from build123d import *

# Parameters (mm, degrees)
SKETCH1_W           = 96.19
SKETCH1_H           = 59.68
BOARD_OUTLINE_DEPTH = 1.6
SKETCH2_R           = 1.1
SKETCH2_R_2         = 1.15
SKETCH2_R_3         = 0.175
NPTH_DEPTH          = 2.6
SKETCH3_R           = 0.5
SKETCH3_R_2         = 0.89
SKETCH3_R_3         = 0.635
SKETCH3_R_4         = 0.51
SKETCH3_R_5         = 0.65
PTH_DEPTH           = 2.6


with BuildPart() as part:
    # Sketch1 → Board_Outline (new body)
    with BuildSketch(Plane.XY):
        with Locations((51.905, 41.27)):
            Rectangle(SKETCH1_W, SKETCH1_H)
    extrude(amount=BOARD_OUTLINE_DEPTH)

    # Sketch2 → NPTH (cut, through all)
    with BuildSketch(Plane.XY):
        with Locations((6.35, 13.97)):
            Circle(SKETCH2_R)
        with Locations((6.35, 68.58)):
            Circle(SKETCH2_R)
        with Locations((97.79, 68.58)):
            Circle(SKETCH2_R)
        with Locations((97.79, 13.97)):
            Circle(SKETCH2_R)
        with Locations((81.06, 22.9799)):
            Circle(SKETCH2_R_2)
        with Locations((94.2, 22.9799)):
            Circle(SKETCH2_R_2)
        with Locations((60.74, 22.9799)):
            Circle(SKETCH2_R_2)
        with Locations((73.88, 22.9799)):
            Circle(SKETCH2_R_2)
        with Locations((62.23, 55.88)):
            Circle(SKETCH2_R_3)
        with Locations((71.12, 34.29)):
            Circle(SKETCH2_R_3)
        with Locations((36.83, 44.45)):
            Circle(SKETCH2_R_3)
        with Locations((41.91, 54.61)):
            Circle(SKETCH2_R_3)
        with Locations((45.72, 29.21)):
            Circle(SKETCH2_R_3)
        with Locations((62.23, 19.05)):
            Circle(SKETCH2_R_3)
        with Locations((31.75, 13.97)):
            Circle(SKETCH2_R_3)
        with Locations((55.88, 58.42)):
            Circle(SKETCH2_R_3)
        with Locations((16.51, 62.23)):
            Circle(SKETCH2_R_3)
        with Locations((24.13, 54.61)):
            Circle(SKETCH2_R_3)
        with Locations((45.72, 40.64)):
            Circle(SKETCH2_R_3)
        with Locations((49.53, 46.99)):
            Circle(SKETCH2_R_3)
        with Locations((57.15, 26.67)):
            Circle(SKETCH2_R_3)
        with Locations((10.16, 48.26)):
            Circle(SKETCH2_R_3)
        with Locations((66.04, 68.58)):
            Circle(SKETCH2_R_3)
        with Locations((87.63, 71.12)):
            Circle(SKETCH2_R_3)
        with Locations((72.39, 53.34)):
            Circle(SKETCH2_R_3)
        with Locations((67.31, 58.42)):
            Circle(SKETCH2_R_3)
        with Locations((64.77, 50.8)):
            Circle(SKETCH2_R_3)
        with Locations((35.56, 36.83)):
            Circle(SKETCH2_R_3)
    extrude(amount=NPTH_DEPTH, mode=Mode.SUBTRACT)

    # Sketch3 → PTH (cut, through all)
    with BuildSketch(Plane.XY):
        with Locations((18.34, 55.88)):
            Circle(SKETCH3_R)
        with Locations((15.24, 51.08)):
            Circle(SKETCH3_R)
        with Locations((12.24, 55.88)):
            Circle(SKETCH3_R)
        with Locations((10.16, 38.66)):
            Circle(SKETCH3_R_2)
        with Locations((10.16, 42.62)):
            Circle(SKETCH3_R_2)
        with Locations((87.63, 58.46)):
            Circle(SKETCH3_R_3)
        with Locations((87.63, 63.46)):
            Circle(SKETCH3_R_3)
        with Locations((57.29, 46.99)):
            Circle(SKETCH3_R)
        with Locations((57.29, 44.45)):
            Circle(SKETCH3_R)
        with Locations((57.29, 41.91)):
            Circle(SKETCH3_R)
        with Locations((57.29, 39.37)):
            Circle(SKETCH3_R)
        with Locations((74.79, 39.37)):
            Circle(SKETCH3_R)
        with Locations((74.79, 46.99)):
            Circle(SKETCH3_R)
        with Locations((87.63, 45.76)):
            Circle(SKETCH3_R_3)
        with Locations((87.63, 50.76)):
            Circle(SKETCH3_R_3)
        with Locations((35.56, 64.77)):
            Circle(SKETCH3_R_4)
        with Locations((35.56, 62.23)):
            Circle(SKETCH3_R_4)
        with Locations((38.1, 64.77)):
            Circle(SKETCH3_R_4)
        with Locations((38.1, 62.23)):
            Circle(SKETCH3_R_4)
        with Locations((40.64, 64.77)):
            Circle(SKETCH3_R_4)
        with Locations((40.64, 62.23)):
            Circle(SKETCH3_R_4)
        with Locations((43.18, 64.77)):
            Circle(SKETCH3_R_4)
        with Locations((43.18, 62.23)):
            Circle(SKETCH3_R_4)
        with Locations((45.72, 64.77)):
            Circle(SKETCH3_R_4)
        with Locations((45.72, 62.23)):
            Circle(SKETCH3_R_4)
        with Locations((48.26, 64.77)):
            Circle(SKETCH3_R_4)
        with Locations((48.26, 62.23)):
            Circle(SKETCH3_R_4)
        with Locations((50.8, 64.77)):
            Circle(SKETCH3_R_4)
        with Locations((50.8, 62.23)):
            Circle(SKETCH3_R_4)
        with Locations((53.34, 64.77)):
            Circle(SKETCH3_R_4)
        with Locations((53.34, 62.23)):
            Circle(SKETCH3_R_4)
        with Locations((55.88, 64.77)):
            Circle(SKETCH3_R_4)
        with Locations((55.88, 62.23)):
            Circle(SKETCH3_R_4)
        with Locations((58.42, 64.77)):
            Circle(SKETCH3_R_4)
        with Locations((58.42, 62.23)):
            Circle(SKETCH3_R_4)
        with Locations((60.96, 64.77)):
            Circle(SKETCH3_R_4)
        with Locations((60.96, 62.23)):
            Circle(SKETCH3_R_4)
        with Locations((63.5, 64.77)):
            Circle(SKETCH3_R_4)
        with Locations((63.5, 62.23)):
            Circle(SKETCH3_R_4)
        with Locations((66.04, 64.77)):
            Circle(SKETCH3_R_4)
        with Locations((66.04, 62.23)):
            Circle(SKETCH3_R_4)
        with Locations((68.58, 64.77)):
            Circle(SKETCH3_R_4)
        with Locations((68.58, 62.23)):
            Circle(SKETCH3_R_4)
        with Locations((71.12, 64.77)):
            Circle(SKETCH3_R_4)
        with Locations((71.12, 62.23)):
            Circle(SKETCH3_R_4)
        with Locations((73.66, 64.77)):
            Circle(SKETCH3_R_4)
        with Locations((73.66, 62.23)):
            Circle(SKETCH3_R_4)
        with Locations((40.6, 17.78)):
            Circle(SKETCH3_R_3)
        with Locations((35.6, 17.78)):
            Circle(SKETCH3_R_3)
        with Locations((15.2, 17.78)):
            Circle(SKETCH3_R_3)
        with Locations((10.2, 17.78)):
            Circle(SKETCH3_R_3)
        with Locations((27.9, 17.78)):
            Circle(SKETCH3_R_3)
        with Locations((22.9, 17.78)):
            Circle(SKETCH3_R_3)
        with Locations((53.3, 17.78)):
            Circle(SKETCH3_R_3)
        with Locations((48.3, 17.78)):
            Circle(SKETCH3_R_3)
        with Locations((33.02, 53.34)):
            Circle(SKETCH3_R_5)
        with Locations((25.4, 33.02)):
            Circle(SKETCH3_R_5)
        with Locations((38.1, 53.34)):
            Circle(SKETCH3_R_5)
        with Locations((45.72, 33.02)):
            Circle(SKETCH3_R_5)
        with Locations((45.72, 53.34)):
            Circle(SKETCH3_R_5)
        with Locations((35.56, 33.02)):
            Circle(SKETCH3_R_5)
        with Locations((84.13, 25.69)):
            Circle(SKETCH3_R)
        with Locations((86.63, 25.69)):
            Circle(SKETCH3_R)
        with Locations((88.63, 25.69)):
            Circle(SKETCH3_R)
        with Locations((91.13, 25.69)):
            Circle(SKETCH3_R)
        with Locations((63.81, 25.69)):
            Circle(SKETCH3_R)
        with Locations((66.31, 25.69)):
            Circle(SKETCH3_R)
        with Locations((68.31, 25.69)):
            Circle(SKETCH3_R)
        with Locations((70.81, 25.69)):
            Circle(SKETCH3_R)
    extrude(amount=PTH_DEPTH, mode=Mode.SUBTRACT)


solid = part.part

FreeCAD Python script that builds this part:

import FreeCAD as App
import Part
import Sketcher

V = App.Vector
Q = App.Units.Quantity


def add_polygon(sketch, points):
    """Adds a closed chain of lines whose ends are joined by coincident constraints."""
    first, n = sketch.GeometryCount, len(points)
    for a, b in zip(points, points[1:] + points[:1]):
        sketch.addGeometry(Part.LineSegment(App.Vector(*a, 0), App.Vector(*b, 0)), False)
    for i in range(n):
        sketch.addConstraint(Sketcher.Constraint("Coincident", first + i, 2, first + (i + 1) % n, 1))

doc = App.newDocument("Part")
body = doc.addObject("PartDesign::Body", "Body")

# Sketch on XY plane
sketch1 = doc.addObject("Sketcher::SketchObject", "Sketch")
body.addObject(sketch1)
sketch1.AttachmentSupport = (doc.XY_Plane, [""])
sketch1.MapMode = "FlatFace"
add_polygon(sketch1, [(4, 71), (4, 11), (100, 11), (100, 71)])  # lines 0-3
sketch1.addConstraint([
    Sketcher.Constraint("Vertical", 0),
    Sketcher.Constraint("Horizontal", 1),
    Sketcher.Constraint("Vertical", 2),
    Sketcher.Constraint("Horizontal", 3),
    Sketcher.Constraint("DistanceX", -1, 1, 1, 2, Q("100 mm")),
    Sketcher.Constraint("DistanceX", 1, 1, 1, 2, Q("96.19 mm")),
    Sketcher.Constraint("DistanceY", 0, 2, 0, 1, Q("59.68 mm")),
    Sketcher.Constraint("DistanceY", -1, 1, 0, 2, Q("11.43 mm")),
])
pad1 = doc.addObject("PartDesign::Pad", "Pad")
body.addObject(pad1)
pad1.Profile = sketch1
pad1.Length = 1.6

# Sketch on XY plane
sketch2 = doc.addObject("Sketcher::SketchObject", "Sketch001")
body.addObject(sketch2)
sketch2.AttachmentSupport = (doc.XY_Plane, [""])
sketch2.MapMode = "FlatFace"
sketch2.addGeometry([
    Part.Circle(V(6.35, 13.97, 0), V(0, 0, 1), 1.1),  # 0
    Part.Circle(V(6.35, 68.58, 0), V(0, 0, 1), 1.1),  # 1
    Part.Circle(V(97.79, 68.58, 0), V(0, 0, 1), 1.1),  # 2
    Part.Circle(V(97.79, 13.97, 0), V(0, 0, 1), 1.1),  # 3
    Part.Circle(V(81.06, 22.98, 0), V(0, 0, 1), 1.15),  # 4
    Part.Circle(V(94.2, 22.98, 0), V(0, 0, 1), 1.15),  # 5
    Part.Circle(V(60.74, 22.98, 0), V(0, 0, 1), 1.15),  # 6
    Part.Circle(V(73.88, 22.98, 0), V(0, 0, 1), 1.15),  # 7
    Part.Circle(V(62.23, 55.88, 0), V(0, 0, 1), 0.17),  # 8
    Part.Circle(V(71.12, 34.29, 0), V(0, 0, 1), 0.17),  # 9
    Part.Circle(V(36.83, 44.45, 0), V(0, 0, 1), 0.17),  # 10
    Part.Circle(V(41.91, 54.61, 0), V(0, 0, 1), 0.17),  # 11
    Part.Circle(V(45.72, 29.21, 0), V(0, 0, 1), 0.17),  # 12
    Part.Circle(V(62.23, 19.05, 0), V(0, 0, 1), 0.17),  # 13
    Part.Circle(V(31.75, 13.97, 0), V(0, 0, 1), 0.17),  # 14
    Part.Circle(V(55.88, 58.42, 0), V(0, 0, 1), 0.17),  # 15
    Part.Circle(V(16.51, 62.23, 0), V(0, 0, 1), 0.17),  # 16
    Part.Circle(V(24.13, 54.61, 0), V(0, 0, 1), 0.17),  # 17
    Part.Circle(V(45.72, 40.64, 0), V(0, 0, 1), 0.17),  # 18
    Part.Circle(V(49.53, 46.99, 0), V(0, 0, 1), 0.17),  # 19
    Part.Circle(V(57.15, 26.67, 0), V(0, 0, 1), 0.17),  # 20
    Part.Circle(V(10.16, 48.26, 0), V(0, 0, 1), 0.17),  # 21
    Part.Circle(V(66.04, 68.58, 0), V(0, 0, 1), 0.17),  # 22
    Part.Circle(V(87.63, 71.12, 0), V(0, 0, 1), 0.17),  # 23
    Part.Circle(V(72.39, 53.34, 0), V(0, 0, 1), 0.17),  # 24
    Part.Circle(V(67.31, 58.42, 0), V(0, 0, 1), 0.17),  # 25
    Part.Circle(V(64.77, 50.8, 0), V(0, 0, 1), 0.17),  # 26
    Part.Circle(V(35.56, 36.83, 0), V(0, 0, 1), 0.17),  # 27
], False)
sketch2.addConstraint([
    Sketcher.Constraint("Equal", 0, 1),
    Sketcher.Constraint("Equal", 1, 2),
    Sketcher.Constraint("Equal", 2, 3),
    Sketcher.Constraint("Equal", 4, 5),
    Sketcher.Constraint("Equal", 5, 6),
    Sketcher.Constraint("Equal", 6, 7),
    Sketcher.Constraint("Equal", 8, 9),
    Sketcher.Constraint("Equal", 9, 10),
    Sketcher.Constraint("Equal", 10, 11),
    Sketcher.Constraint("Equal", 11, 12),
    Sketcher.Constraint("Equal", 12, 13),
    Sketcher.Constraint("Equal", 13, 14),
    Sketcher.Constraint("Equal", 14, 15),
    Sketcher.Constraint("Equal", 15, 16),
    Sketcher.Constraint("Equal", 16, 17),
    Sketcher.Constraint("Equal", 17, 18),
    Sketcher.Constraint("Equal", 18, 19),
    Sketcher.Constraint("Equal", 19, 20),
    Sketcher.Constraint("Equal", 20, 21),
    Sketcher.Constraint("Equal", 21, 22),
    Sketcher.Constraint("Equal", 22, 23),
    Sketcher.Constraint("Equal", 23, 24),
    Sketcher.Constraint("Equal", 24, 25),
    Sketcher.Constraint("Equal", 25, 26),
    Sketcher.Constraint("Equal", 26, 27),
    Sketcher.Constraint("Horizontal", 1, 3, 2, 3),
    Sketcher.Constraint("Horizontal", 0, 3, 3, 3),
    Sketcher.Constraint("Horizontal", 4, 3, 5, 3),
    Sketcher.Constraint("Horizontal", 5, 3, 6, 3),
    Sketcher.Constraint("Horizontal", 6, 3, 7, 3),
    Sketcher.Constraint("Horizontal", 3, 3, 14, 3),
    Sketcher.Constraint("Horizontal", 11, 3, 17, 3),
    Sketcher.Constraint("Horizontal", 2, 3, 22, 3),
    Sketcher.Constraint("Horizontal", 15, 3, 25, 3),
    Sketcher.Constraint("Vertical", 0, 3, 1, 3),
    Sketcher.Constraint("Vertical", 2, 3, 3, 3),
    Sketcher.Constraint("Vertical", 8, 3, 13, 3),
    Sketcher.Constraint("Vertical", 12, 3, 18, 3),
    Sketcher.Constraint("Diameter", 0, Q("2.2 mm")),
    Sketcher.Constraint("Diameter", 4, Q("2.3 mm")),
    Sketcher.Constraint("Diameter", 8, Q("0.35 mm")),
    Sketcher.Constraint("DistanceX", -1, 1, 5, 3, Q("94.2 mm")),
    Sketcher.Constraint("DistanceY", -1, 1, 26, 3, Q("50.8 mm")),
    Sketcher.Constraint("DistanceY", 8, 3, 2, 3, Q("12.7 mm")),
    Sketcher.Constraint("DistanceX", 10, 3, 8, 3, Q("25.4 mm")),
    Sketcher.Constraint("DistanceY", 12, 3, 11, 3, Q("25.4 mm")),
    Sketcher.Constraint("DistanceX", 12, 3, 9, 3, Q("25.4 mm")),
    Sketcher.Constraint("DistanceX", 0, 3, 14, 3, Q("25.4 mm")),
    Sketcher.Constraint("DistanceX", 16, 3, 11, 3, Q("25.4 mm")),
    Sketcher.Constraint("DistanceX", 17, 3, 10, 3, Q("12.7 mm")),
    Sketcher.Constraint("DistanceX", 10, 3, 19, 3, Q("12.7 mm")),
    Sketcher.Constraint("DistanceX", 8, 3, 23, 3, Q("25.4 mm")),
    Sketcher.Constraint("DistanceY", 15, 3, 23, 3, Q("12.7 mm")),
    Sketcher.Constraint("DistanceX", -1, 1, 0, 3, Q("6.35 mm")),
    Sketcher.Constraint("DistanceY", -1, 1, 0, 3, Q("13.97 mm")),
    Sketcher.Constraint("DistanceY", -1, 1, 1, 3, Q("68.58 mm")),
    Sketcher.Constraint("DistanceX", -1, 1, 2, 3, Q("97.79 mm")),
    Sketcher.Constraint("DistanceX", -1, 1, 4, 3, Q("81.06 mm")),
    Sketcher.Constraint("DistanceX", -1, 1, 6, 3, Q("60.74 mm")),
    Sketcher.Constraint("DistanceX", -1, 1, 7, 3, Q("73.88 mm")),
    Sketcher.Constraint("DistanceX", -1, 1, 8, 3, Q("62.23 mm")),
    Sketcher.Constraint("DistanceX", -1, 1, 9, 3, Q("71.12 mm")),
    Sketcher.Constraint("DistanceY", -1, 1, 9, 3, Q("34.29 mm")),
    Sketcher.Constraint("DistanceY", -1, 1, 10, 3, Q("44.45 mm")),
    Sketcher.Constraint("DistanceX", -1, 1, 11, 3, Q("41.91 mm")),
    Sketcher.Constraint("DistanceY", -1, 1, 11, 3, Q("54.61 mm")),
    Sketcher.Constraint("DistanceY", -1, 1, 13, 3, Q("19.05 mm")),
    Sketcher.Constraint("DistanceX", -1, 1, 15, 3, Q("55.88 mm")),
    Sketcher.Constraint("DistanceY", -1, 1, 15, 3, Q("58.42 mm")),
    Sketcher.Constraint("DistanceY", -1, 1, 16, 3, Q("62.23 mm")),
    Sketcher.Constraint("DistanceY", -1, 1, 18, 3, Q("40.64 mm")),
    Sketcher.Constraint("DistanceY", -1, 1, 19, 3, Q("46.99 mm")),
    Sketcher.Constraint("DistanceX", -1, 1, 20, 3, Q("57.15 mm")),
    Sketcher.Constraint("DistanceY", -1, 1, 20, 3, Q("26.67 mm")),
    Sketcher.Constraint("DistanceX", -1, 1, 21, 3, Q("10.16 mm")),
    Sketcher.Constraint("DistanceY", -1, 1, 21, 3, Q("48.26 mm")),
    Sketcher.Constraint("DistanceX", -1, 1, 22, 3, Q("66.04 mm")),
    Sketcher.Constraint("DistanceX", -1, 1, 24, 3, Q("72.39 mm")),
    Sketcher.Constraint("DistanceY", -1, 1, 24, 3, Q("53.34 mm")),
    Sketcher.Constraint("DistanceX", -1, 1, 25, 3, Q("67.31 mm")),
    Sketcher.Constraint("DistanceX", -1, 1, 26, 3, Q("64.77 mm")),
    Sketcher.Constraint("DistanceX", -1, 1, 27, 3, Q("35.56 mm")),
    Sketcher.Constraint("DistanceY", -1, 1, 27, 3, Q("36.83 mm")),
    Sketcher.Constraint("DistanceY", -1, 1, 4, 3, Q("22.9799 mm")),
])
pocket1 = doc.addObject("PartDesign::Pocket", "Pocket")
body.addObject(pocket1)
pocket1.Profile = sketch2
pocket1.Type = "ThroughAll"
pocket1.Reversed = True

# Sketch on XY plane
sketch3 = doc.addObject("Sketcher::SketchObject", "Sketch002")
body.addObject(sketch3)
sketch3.AttachmentSupport = (doc.XY_Plane, [""])
sketch3.MapMode = "FlatFace"
sketch3.addGeometry([
    Part.Circle(V(18.3, 55.9, 0), V(0, 0, 1), 0.5),  # 0
    Part.Circle(V(15.2, 51.1, 0), V(0, 0, 1), 0.5),  # 1
    Part.Circle(V(12.2, 55.9, 0), V(0, 0, 1), 0.5),  # 2
    Part.Circle(V(10.2, 38.7, 0), V(0, 0, 1), 0.9),  # 3
    Part.Circle(V(10.2, 42.6, 0), V(0, 0, 1), 0.9),  # 4
    Part.Circle(V(87.6, 58.5, 0), V(0, 0, 1), 0.6),  # 5
    Part.Circle(V(87.6, 63.5, 0), V(0, 0, 1), 0.6),  # 6
    Part.Circle(V(57.3, 47, 0), V(0, 0, 1), 0.5),  # 7
    Part.Circle(V(57.3, 44.5, 0), V(0, 0, 1), 0.5),  # 8
    Part.Circle(V(57.3, 41.9, 0), V(0, 0, 1), 0.5),  # 9
    Part.Circle(V(57.3, 39.4, 0), V(0, 0, 1), 0.5),  # 10
    Part.Circle(V(74.8, 39.4, 0), V(0, 0, 1), 0.5),  # 11
    Part.Circle(V(74.8, 47, 0), V(0, 0, 1), 0.5),  # 12
    Part.Circle(V(87.6, 45.8, 0), V(0, 0, 1), 0.6),  # 13
    Part.Circle(V(87.6, 50.8, 0), V(0, 0, 1), 0.6),  # 14
    Part.Circle(V(35.6, 64.8, 0), V(0, 0, 1), 0.5),  # 15
    Part.Circle(V(35.6, 62.2, 0), V(0, 0, 1), 0.5),  # 16
    Part.Circle(V(38.1, 64.8, 0), V(0, 0, 1), 0.5),  # 17
    Part.Circle(V(38.1, 62.2, 0), V(0, 0, 1), 0.5),  # 18
    Part.Circle(V(40.6, 64.8, 0), V(0, 0, 1), 0.5),  # 19
    Part.Circle(V(40.6, 62.2, 0), V(0, 0, 1), 0.5),  # 20
    Part.Circle(V(43.2, 64.8, 0), V(0, 0, 1), 0.5),  # 21
    Part.Circle(V(43.2, 62.2, 0), V(0, 0, 1), 0.5),  # 22
    Part.Circle(V(45.7, 64.8, 0), V(0, 0, 1), 0.5),  # 23
    Part.Circle(V(45.7, 62.2, 0), V(0, 0, 1), 0.5),  # 24
    Part.Circle(V(48.3, 64.8, 0), V(0, 0, 1), 0.5),  # 25
    Part.Circle(V(48.3, 62.2, 0), V(0, 0, 1), 0.5),  # 26
    Part.Circle(V(50.8, 64.8, 0), V(0, 0, 1), 0.5),  # 27
    Part.Circle(V(50.8, 62.2, 0), V(0, 0, 1), 0.5),  # 28
    Part.Circle(V(53.3, 64.8, 0), V(0, 0, 1), 0.5),  # 29
    Part.Circle(V(53.3, 62.2, 0), V(0, 0, 1), 0.5),  # 30
    Part.Circle(V(55.9, 64.8, 0), V(0, 0, 1), 0.5),  # 31
    Part.Circle(V(55.9, 62.2, 0), V(0, 0, 1), 0.5),  # 32
    Part.Circle(V(58.4, 64.8, 0), V(0, 0, 1), 0.5),  # 33
    Part.Circle(V(58.4, 62.2, 0), V(0, 0, 1), 0.5),  # 34
    Part.Circle(V(61, 64.8, 0), V(0, 0, 1), 0.5),  # 35
    Part.Circle(V(61, 62.2, 0), V(0, 0, 1), 0.5),  # 36
    Part.Circle(V(63.5, 64.8, 0), V(0, 0, 1), 0.5),  # 37
    Part.Circle(V(63.5, 62.2, 0), V(0, 0, 1), 0.5),  # 38
    Part.Circle(V(66, 64.8, 0), V(0, 0, 1), 0.5),  # 39
    Part.Circle(V(66, 62.2, 0), V(0, 0, 1), 0.5),  # 40
    Part.Circle(V(68.6, 64.8, 0), V(0, 0, 1), 0.5),  # 41
    Part.Circle(V(68.6, 62.2, 0), V(0, 0, 1), 0.5),  # 42
    Part.Circle(V(71.1, 64.8, 0), V(0, 0, 1), 0.5),  # 43
    Part.Circle(V(71.1, 62.2, 0), V(0, 0, 1), 0.5),  # 44
    Part.Circle(V(73.7, 64.8, 0), V(0, 0, 1), 0.5),  # 45
    Part.Circle(V(73.7, 62.2, 0), V(0, 0, 1), 0.5),  # 46
    Part.Circle(V(40.6, 17.8, 0), V(0, 0, 1), 0.6),  # 47
    Part.Circle(V(35.6, 17.8, 0), V(0, 0, 1), 0.6),  # 48
    Part.Circle(V(15.2, 17.8, 0), V(0, 0, 1), 0.6),  # 49
    Part.Circle(V(10.2, 17.8, 0), V(0, 0, 1), 0.6),  # 50
    Part.Circle(V(27.9, 17.8, 0), V(0, 0, 1), 0.6),  # 51
    Part.Circle(V(22.9, 17.8, 0), V(0, 0, 1), 0.6),  # 52
    Part.Circle(V(53.3, 17.8, 0), V(0, 0, 1), 0.6),  # 53
    Part.Circle(V(48.3, 17.8, 0), V(0, 0, 1), 0.6),  # 54
    Part.Circle(V(33, 53.3, 0), V(0, 0, 1), 0.7),  # 55
    Part.Circle(V(25.4, 33, 0), V(0, 0, 1), 0.7),  # 56
    Part.Circle(V(38.1, 53.3, 0), V(0, 0, 1), 0.7),  # 57
    Part.Circle(V(45.7, 33, 0), V(0, 0, 1), 0.7),  # 58
    Part.Circle(V(45.7, 53.3, 0), V(0, 0, 1), 0.7),  # 59
    Part.Circle(V(35.6, 33, 0), V(0, 0, 1), 0.7),  # 60
    Part.Circle(V(84.1, 25.7, 0), V(0, 0, 1), 0.5),  # 61
    Part.Circle(V(86.6, 25.7, 0), V(0, 0, 1), 0.5),  # 62
    Part.Circle(V(88.6, 25.7, 0), V(0, 0, 1), 0.5),  # 63
    Part.Circle(V(91.1, 25.7, 0), V(0, 0, 1), 0.5),  # 64
    Part.Circle(V(63.8, 25.7, 0), V(0, 0, 1), 0.5),  # 65
    Part.Circle(V(66.3, 25.7, 0), V(0, 0, 1), 0.5),  # 66
    Part.Circle(V(68.3, 25.7, 0), V(0, 0, 1), 0.5),  # 67
    Part.Circle(V(70.8, 25.7, 0), V(0, 0, 1), 0.5),  # 68
], False)
sketch3.addConstraint([
    Sketcher.Constraint("Equal", 0, 1),
    Sketcher.Constraint("Equal", 1, 2),
    Sketcher.Constraint("Equal", 3, 4),
    Sketcher.Constraint("Equal", 5, 6),
    Sketcher.Constraint("Equal", 2, 7),
    Sketcher.Constraint("Equal", 7, 8),
    Sketcher.Constraint("Equal", 8, 9),
    Sketcher.Constraint("Equal", 9, 10),
    Sketcher.Constraint("Equal", 10, 11),
    Sketcher.Constraint("Equal", 11, 12),
    Sketcher.Constraint("Equal", 6, 13),
    Sketcher.Constraint("Equal", 13, 14),
    Sketcher.Constraint("Equal", 15, 16),
    Sketcher.Constraint("Equal", 16, 17),
    Sketcher.Constraint("Equal", 17, 18),
    Sketcher.Constraint("Equal", 18, 19),
    Sketcher.Constraint("Equal", 19, 20),
    Sketcher.Constraint("Equal", 20, 21),
    Sketcher.Constraint("Equal", 21, 22),
    Sketcher.Constraint("Equal", 22, 23),
    Sketcher.Constraint("Equal", 23, 24),
    Sketcher.Constraint("Equal", 24, 25),
    Sketcher.Constraint("Equal", 25, 26),
    Sketcher.Constraint("Equal", 26, 27),
    Sketcher.Constraint("Equal", 27, 28),
    Sketcher.Constraint("Equal", 28, 29),
    Sketcher.Constraint("Equal", 29, 30),
    Sketcher.Constraint("Equal", 30, 31),
    Sketcher.Constraint("Equal", 31, 32),
    Sketcher.Constraint("Equal", 32, 33),
    Sketcher.Constraint("Equal", 33, 34),
    Sketcher.Constraint("Equal", 34, 35),
    Sketcher.Constraint("Equal", 35, 36),
    Sketcher.Constraint("Equal", 36, 37),
    Sketcher.Constraint("Equal", 37, 38),
    Sketcher.Constraint("Equal", 38, 39),
    Sketcher.Constraint("Equal", 39, 40),
    Sketcher.Constraint("Equal", 40, 41),
    Sketcher.Constraint("Equal", 41, 42),
    Sketcher.Constraint("Equal", 42, 43),
    Sketcher.Constraint("Equal", 43, 44),
    Sketcher.Constraint("Equal", 44, 45),
    Sketcher.Constraint("Equal", 45, 46),
    Sketcher.Constraint("Equal", 14, 47),
    Sketcher.Constraint("Equal", 47, 48),
    Sketcher.Constraint("Equal", 48, 49),
    Sketcher.Constraint("Equal", 49, 50),
    Sketcher.Constraint("Equal", 50, 51),
    Sketcher.Constraint("Equal", 51, 52),
    Sketcher.Constraint("Equal", 52, 53),
    Sketcher.Constraint("Equal", 53, 54),
    Sketcher.Constraint("Equal", 55, 56),
    Sketcher.Constraint("Equal", 56, 57),
    Sketcher.Constraint("Equal", 57, 58),
    Sketcher.Constraint("Equal", 58, 59),
    Sketcher.Constraint("Equal", 59, 60),
    Sketcher.Constraint("Equal", 12, 61),
    Sketcher.Constraint("Equal", 61, 62),
    Sketcher.Constraint("Equal", 62, 63),
    Sketcher.Constraint("Equal", 63, 64),
    Sketcher.Constraint("Equal", 64, 65),
    Sketcher.Constraint("Equal", 65, 66),
    Sketcher.Constraint("Equal", 66, 67),
    Sketcher.Constraint("Equal", 67, 68),
    Sketcher.Constraint("Horizontal", 0, 3, 2, 3),
    Sketcher.Constraint("Horizontal", 10, 3, 11, 3),
    Sketcher.Constraint("Horizontal", 7, 3, 12, 3),
    Sketcher.Constraint("Horizontal", 15, 3, 17, 3),
    Sketcher.Constraint("Horizontal", 16, 3, 18, 3),
    Sketcher.Constraint("Horizontal", 17, 3, 19, 3),
    Sketcher.Constraint("Horizontal", 18, 3, 20, 3),
    Sketcher.Constraint("Horizontal", 19, 3, 21, 3),
    Sketcher.Constraint("Horizontal", 20, 3, 22, 3),
    Sketcher.Constraint("Horizontal", 21, 3, 23, 3),
    Sketcher.Constraint("Horizontal", 22, 3, 24, 3),
    Sketcher.Constraint("Horizontal", 23, 3, 25, 3),
    Sketcher.Constraint("Horizontal", 24, 3, 26, 3),
    Sketcher.Constraint("Horizontal", 25, 3, 27, 3),
    Sketcher.Constraint("Horizontal", 26, 3, 28, 3),
    Sketcher.Constraint("Horizontal", 27, 3, 29, 3),
    Sketcher.Constraint("Horizontal", 28, 3, 30, 3),
    Sketcher.Constraint("Horizontal", 29, 3, 31, 3),
    Sketcher.Constraint("Horizontal", 30, 3, 32, 3),
    Sketcher.Constraint("Horizontal", 31, 3, 33, 3),
    Sketcher.Constraint("Horizontal", 32, 3, 34, 3),
    Sketcher.Constraint("Horizontal", 33, 3, 35, 3),
    Sketcher.Constraint("Horizontal", 34, 3, 36, 3),
    Sketcher.Constraint("Horizontal", 35, 3, 37, 3),
    Sketcher.Constraint("Horizontal", 36, 3, 38, 3),
    Sketcher.Constraint("Horizontal", 37, 3, 39, 3),
    Sketcher.Constraint("Horizontal", 38, 3, 40, 3),
    Sketcher.Constraint("Horizontal", 39, 3, 41, 3),
    Sketcher.Constraint("Horizontal", 40, 3, 42, 3),
    Sketcher.Constraint("Horizontal", 41, 3, 43, 3),
    Sketcher.Constraint("Horizontal", 42, 3, 44, 3),
    Sketcher.Constraint("Horizontal", 43, 3, 45, 3),
    Sketcher.Constraint("Horizontal", 44, 3, 46, 3),
    Sketcher.Constraint("Horizontal", 47, 3, 48, 3),
    Sketcher.Constraint("Horizontal", 48, 3, 49, 3),
    Sketcher.Constraint("Horizontal", 49, 3, 50, 3),
    Sketcher.Constraint("Horizontal", 50, 3, 51, 3),
    Sketcher.Constraint("Horizontal", 51, 3, 52, 3),
    Sketcher.Constraint("Horizontal", 52, 3, 53, 3),
    Sketcher.Constraint("Horizontal", 53, 3, 54, 3),
    Sketcher.Constraint("Horizontal", 55, 3, 57, 3),
    Sketcher.Constraint("Horizontal", 56, 3, 58, 3),
    Sketcher.Constraint("Horizontal", 57, 3, 59, 3),
    Sketcher.Constraint("Horizontal", 58, 3, 60, 3),
    Sketcher.Constraint("Horizontal", 61, 3, 62, 3),
    Sketcher.Constraint("Horizontal", 62, 3, 63, 3),
    Sketcher.Constraint("Horizontal", 63, 3, 64, 3),
    Sketcher.Constraint("Horizontal", 64, 3, 65, 3),
    Sketcher.Constraint("Horizontal", 65, 3, 66, 3),
    Sketcher.Constraint("Horizontal", 66, 3, 67, 3),
    Sketcher.Constraint("Horizontal", 67, 3, 68, 3),
    Sketcher.Constraint("Vertical", 3, 3, 4, 3),
    Sketcher.Constraint("Vertical", 5, 3, 6, 3),
    Sketcher.Constraint("Vertical", 7, 3, 8, 3),
    Sketcher.Constraint("Vertical", 8, 3, 9, 3),
    Sketcher.Constraint("Vertical", 9, 3, 10, 3),
    Sketcher.Constraint("Vertical", 11, 3, 12, 3),
    Sketcher.Constraint("Vertical", 6, 3, 13, 3),
    Sketcher.Constraint("Vertical", 13, 3, 14, 3),
    Sketcher.Constraint("Vertical", 15, 3, 16, 3),
    Sketcher.Constraint("Vertical", 17, 3, 18, 3),
    Sketcher.Constraint("Vertical", 19, 3, 20, 3),
    Sketcher.Constraint("Vertical", 21, 3, 22, 3),
    Sketcher.Constraint("Vertical", 23, 3, 24, 3),
    Sketcher.Constraint("Vertical", 25, 3, 26, 3),
    Sketcher.Constraint("Vertical", 27, 3, 28, 3),
    Sketcher.Constraint("Vertical", 29, 3, 30, 3),
    Sketcher.Constraint("Vertical", 31, 3, 32, 3),
    Sketcher.Constraint("Vertical", 33, 3, 34, 3),
    Sketcher.Constraint("Vertical", 35, 3, 36, 3),
    Sketcher.Constraint("Vertical", 37, 3, 38, 3),
    Sketcher.Constraint("Vertical", 39, 3, 40, 3),
    Sketcher.Constraint("Vertical", 41, 3, 42, 3),
    Sketcher.Constraint("Vertical", 43, 3, 44, 3),
    Sketcher.Constraint("Vertical", 45, 3, 46, 3),
    Sketcher.Constraint("Vertical", 18, 3, 57, 3),
    Sketcher.Constraint("Vertical", 24, 3, 58, 3),
    Sketcher.Constraint("Vertical", 58, 3, 59, 3),
    Sketcher.Constraint("Vertical", 16, 3, 60, 3),
    Sketcher.Constraint("Diameter", 0, Q("1 mm")),
    Sketcher.Constraint("Diameter", 55, Q("1.3 mm")),
    Sketcher.Constraint("Diameter", 3, Q("1.78 mm")),
    Sketcher.Constraint("Diameter", 5, Q("1.27 mm")),
    Sketcher.Constraint("Diameter", 15, Q("1.02 mm")),
    Sketcher.Constraint("DistanceX", -1, 1, 17, 3, Q("38.1 mm")),
    Sketcher.Constraint("DistanceX", -1, 1, 27, 3, Q("50.8 mm")),
    Sketcher.Constraint("DistanceX", -1, 1, 37, 3, Q("63.5 mm")),
    Sketcher.Constraint("DistanceX", -1, 1, 47, 3, Q("40.6 mm")),
    Sketcher.Constraint("DistanceX", -1, 1, 48, 3, Q("35.6 mm")),
    Sketcher.Constraint("DistanceX", -1, 1, 49, 3, Q("15.2 mm")),
    Sketcher.Constraint("DistanceX", -1, 1, 50, 3, Q("10.2 mm")),
    Sketcher.Constraint("DistanceX", -1, 1, 51, 3, Q("27.9 mm")),
    Sketcher.Constraint("DistanceX", -1, 1, 52, 3, Q("22.9 mm")),
    Sketcher.Constraint("DistanceX", -1, 1, 53, 3, Q("53.3 mm")),
    Sketcher.Constraint("DistanceX", -1, 1, 54, 3, Q("48.3 mm")),
    Sketcher.Constraint("DistanceX", -1, 1, 56, 3, Q("25.4 mm")),
    Sketcher.Constraint("DistanceX", -1, 1, 0, 3, Q("18.34 mm")),
    Sketcher.Constraint("DistanceY", -1, 1, 0, 3, Q("55.88 mm")),
    Sketcher.Constraint("DistanceX", -1, 1, 1, 3, Q("15.24 mm")),
    Sketcher.Constraint("DistanceY", -1, 1, 1, 3, Q("51.08 mm")),
    Sketcher.Constraint("DistanceX", -1, 1, 2, 3, Q("12.24 mm")),
    Sketcher.Constraint("DistanceX", -1, 1, 3, 3, Q("10.16 mm")),
    Sketcher.Constraint("DistanceY", -1, 1, 3, 3, Q("38.66 mm")),
    Sketcher.Constraint("DistanceY", -1, 1, 4, 3, Q("42.62 mm")),
    Sketcher.Constraint("DistanceX", -1, 1, 5, 3, Q("87.63 mm")),
    Sketcher.Constraint("DistanceY", -1, 1, 5, 3, Q("58.46 mm")),
    Sketcher.Constraint("DistanceY", -1, 1, 6, 3, Q("63.46 mm")),
    Sketcher.Constraint("DistanceX", -1, 1, 7, 3, Q("57.29 mm")),
    Sketcher.Constraint("DistanceY", -1, 1, 7, 3, Q("46.99 mm")),
    Sketcher.Constraint("DistanceY", -1, 1, 8, 3, Q("44.45 mm")),
    Sketcher.Constraint("DistanceY", -1, 1, 9, 3, Q("41.91 mm")),
    Sketcher.Constraint("DistanceY", -1, 1, 10, 3, Q("39.37 mm")),
    Sketcher.Constraint("DistanceX", -1, 1, 11, 3, Q("74.79 mm")),
    Sketcher.Constraint("DistanceY", -1, 1, 13, 3, Q("45.76 mm")),
    Sketcher.Constraint("DistanceY", -1, 1, 14, 3, Q("50.76 mm")),
    Sketcher.Constraint("DistanceX", -1, 1, 15, 3, Q("35.56 mm")),
    Sketcher.Constraint("DistanceY", -1, 1, 15, 3, Q("64.77 mm")),
    Sketcher.Constraint("DistanceY", -1, 1, 16, 3, Q("62.23 mm")),
    Sketcher.Constraint("DistanceX", -1, 1, 19, 3, Q("40.64 mm")),
    Sketcher.Constraint("DistanceX", -1, 1, 21, 3, Q("43.18 mm")),
    Sketcher.Constraint("DistanceX", -1, 1, 23, 3, Q("45.72 mm")),
    Sketcher.Constraint("DistanceX", -1, 1, 25, 3, Q("48.26 mm")),
    Sketcher.Constraint("DistanceX", -1, 1, 29, 3, Q("53.34 mm")),
    Sketcher.Constraint("DistanceX", -1, 1, 31, 3, Q("55.88 mm")),
    Sketcher.Constraint("DistanceX", -1, 1, 33, 3, Q("58.42 mm")),
    Sketcher.Constraint("DistanceX", -1, 1, 35, 3, Q("60.96 mm")),
    Sketcher.Constraint("DistanceX", -1, 1, 39, 3, Q("66.04 mm")),
    Sketcher.Constraint("DistanceX", -1, 1, 41, 3, Q("68.58 mm")),
    Sketcher.Constraint("DistanceX", -1, 1, 43, 3, Q("71.12 mm")),
    Sketcher.Constraint("DistanceX", -1, 1, 45, 3, Q("73.66 mm")),
    Sketcher.Constraint("DistanceY", -1, 1, 47, 3, Q("17.78 mm")),
    Sketcher.Constraint("DistanceX", -1, 1, 55, 3, Q("33.02 mm")),
    Sketcher.Constraint("DistanceY", -1, 1, 55, 3, Q("53.34 mm")),
    Sketcher.Constraint("DistanceY", -1, 1, 56, 3, Q("33.02 mm")),
    Sketcher.Constraint("DistanceX", -1, 1, 61, 3, Q("84.13 mm")),
    Sketcher.Constraint("DistanceY", -1, 1, 61, 3, Q("25.69 mm")),
    Sketcher.Constraint("DistanceX", -1, 1, 62, 3, Q("86.63 mm")),
    Sketcher.Constraint("DistanceX", -1, 1, 63, 3, Q("88.63 mm")),
    Sketcher.Constraint("DistanceX", -1, 1, 64, 3, Q("91.13 mm")),
    Sketcher.Constraint("DistanceX", -1, 1, 65, 3, Q("63.81 mm")),
    Sketcher.Constraint("DistanceX", -1, 1, 66, 3, Q("66.31 mm")),
    Sketcher.Constraint("DistanceX", -1, 1, 67, 3, Q("68.31 mm")),
    Sketcher.Constraint("DistanceX", -1, 1, 68, 3, Q("70.81 mm")),
])
pocket2 = doc.addObject("PartDesign::Pocket", "Pocket001")
body.addObject(pocket2)
pocket2.Profile = sketch3
pocket2.Type = "ThroughAll"
pocket2.Reversed = True

doc.recompute()
